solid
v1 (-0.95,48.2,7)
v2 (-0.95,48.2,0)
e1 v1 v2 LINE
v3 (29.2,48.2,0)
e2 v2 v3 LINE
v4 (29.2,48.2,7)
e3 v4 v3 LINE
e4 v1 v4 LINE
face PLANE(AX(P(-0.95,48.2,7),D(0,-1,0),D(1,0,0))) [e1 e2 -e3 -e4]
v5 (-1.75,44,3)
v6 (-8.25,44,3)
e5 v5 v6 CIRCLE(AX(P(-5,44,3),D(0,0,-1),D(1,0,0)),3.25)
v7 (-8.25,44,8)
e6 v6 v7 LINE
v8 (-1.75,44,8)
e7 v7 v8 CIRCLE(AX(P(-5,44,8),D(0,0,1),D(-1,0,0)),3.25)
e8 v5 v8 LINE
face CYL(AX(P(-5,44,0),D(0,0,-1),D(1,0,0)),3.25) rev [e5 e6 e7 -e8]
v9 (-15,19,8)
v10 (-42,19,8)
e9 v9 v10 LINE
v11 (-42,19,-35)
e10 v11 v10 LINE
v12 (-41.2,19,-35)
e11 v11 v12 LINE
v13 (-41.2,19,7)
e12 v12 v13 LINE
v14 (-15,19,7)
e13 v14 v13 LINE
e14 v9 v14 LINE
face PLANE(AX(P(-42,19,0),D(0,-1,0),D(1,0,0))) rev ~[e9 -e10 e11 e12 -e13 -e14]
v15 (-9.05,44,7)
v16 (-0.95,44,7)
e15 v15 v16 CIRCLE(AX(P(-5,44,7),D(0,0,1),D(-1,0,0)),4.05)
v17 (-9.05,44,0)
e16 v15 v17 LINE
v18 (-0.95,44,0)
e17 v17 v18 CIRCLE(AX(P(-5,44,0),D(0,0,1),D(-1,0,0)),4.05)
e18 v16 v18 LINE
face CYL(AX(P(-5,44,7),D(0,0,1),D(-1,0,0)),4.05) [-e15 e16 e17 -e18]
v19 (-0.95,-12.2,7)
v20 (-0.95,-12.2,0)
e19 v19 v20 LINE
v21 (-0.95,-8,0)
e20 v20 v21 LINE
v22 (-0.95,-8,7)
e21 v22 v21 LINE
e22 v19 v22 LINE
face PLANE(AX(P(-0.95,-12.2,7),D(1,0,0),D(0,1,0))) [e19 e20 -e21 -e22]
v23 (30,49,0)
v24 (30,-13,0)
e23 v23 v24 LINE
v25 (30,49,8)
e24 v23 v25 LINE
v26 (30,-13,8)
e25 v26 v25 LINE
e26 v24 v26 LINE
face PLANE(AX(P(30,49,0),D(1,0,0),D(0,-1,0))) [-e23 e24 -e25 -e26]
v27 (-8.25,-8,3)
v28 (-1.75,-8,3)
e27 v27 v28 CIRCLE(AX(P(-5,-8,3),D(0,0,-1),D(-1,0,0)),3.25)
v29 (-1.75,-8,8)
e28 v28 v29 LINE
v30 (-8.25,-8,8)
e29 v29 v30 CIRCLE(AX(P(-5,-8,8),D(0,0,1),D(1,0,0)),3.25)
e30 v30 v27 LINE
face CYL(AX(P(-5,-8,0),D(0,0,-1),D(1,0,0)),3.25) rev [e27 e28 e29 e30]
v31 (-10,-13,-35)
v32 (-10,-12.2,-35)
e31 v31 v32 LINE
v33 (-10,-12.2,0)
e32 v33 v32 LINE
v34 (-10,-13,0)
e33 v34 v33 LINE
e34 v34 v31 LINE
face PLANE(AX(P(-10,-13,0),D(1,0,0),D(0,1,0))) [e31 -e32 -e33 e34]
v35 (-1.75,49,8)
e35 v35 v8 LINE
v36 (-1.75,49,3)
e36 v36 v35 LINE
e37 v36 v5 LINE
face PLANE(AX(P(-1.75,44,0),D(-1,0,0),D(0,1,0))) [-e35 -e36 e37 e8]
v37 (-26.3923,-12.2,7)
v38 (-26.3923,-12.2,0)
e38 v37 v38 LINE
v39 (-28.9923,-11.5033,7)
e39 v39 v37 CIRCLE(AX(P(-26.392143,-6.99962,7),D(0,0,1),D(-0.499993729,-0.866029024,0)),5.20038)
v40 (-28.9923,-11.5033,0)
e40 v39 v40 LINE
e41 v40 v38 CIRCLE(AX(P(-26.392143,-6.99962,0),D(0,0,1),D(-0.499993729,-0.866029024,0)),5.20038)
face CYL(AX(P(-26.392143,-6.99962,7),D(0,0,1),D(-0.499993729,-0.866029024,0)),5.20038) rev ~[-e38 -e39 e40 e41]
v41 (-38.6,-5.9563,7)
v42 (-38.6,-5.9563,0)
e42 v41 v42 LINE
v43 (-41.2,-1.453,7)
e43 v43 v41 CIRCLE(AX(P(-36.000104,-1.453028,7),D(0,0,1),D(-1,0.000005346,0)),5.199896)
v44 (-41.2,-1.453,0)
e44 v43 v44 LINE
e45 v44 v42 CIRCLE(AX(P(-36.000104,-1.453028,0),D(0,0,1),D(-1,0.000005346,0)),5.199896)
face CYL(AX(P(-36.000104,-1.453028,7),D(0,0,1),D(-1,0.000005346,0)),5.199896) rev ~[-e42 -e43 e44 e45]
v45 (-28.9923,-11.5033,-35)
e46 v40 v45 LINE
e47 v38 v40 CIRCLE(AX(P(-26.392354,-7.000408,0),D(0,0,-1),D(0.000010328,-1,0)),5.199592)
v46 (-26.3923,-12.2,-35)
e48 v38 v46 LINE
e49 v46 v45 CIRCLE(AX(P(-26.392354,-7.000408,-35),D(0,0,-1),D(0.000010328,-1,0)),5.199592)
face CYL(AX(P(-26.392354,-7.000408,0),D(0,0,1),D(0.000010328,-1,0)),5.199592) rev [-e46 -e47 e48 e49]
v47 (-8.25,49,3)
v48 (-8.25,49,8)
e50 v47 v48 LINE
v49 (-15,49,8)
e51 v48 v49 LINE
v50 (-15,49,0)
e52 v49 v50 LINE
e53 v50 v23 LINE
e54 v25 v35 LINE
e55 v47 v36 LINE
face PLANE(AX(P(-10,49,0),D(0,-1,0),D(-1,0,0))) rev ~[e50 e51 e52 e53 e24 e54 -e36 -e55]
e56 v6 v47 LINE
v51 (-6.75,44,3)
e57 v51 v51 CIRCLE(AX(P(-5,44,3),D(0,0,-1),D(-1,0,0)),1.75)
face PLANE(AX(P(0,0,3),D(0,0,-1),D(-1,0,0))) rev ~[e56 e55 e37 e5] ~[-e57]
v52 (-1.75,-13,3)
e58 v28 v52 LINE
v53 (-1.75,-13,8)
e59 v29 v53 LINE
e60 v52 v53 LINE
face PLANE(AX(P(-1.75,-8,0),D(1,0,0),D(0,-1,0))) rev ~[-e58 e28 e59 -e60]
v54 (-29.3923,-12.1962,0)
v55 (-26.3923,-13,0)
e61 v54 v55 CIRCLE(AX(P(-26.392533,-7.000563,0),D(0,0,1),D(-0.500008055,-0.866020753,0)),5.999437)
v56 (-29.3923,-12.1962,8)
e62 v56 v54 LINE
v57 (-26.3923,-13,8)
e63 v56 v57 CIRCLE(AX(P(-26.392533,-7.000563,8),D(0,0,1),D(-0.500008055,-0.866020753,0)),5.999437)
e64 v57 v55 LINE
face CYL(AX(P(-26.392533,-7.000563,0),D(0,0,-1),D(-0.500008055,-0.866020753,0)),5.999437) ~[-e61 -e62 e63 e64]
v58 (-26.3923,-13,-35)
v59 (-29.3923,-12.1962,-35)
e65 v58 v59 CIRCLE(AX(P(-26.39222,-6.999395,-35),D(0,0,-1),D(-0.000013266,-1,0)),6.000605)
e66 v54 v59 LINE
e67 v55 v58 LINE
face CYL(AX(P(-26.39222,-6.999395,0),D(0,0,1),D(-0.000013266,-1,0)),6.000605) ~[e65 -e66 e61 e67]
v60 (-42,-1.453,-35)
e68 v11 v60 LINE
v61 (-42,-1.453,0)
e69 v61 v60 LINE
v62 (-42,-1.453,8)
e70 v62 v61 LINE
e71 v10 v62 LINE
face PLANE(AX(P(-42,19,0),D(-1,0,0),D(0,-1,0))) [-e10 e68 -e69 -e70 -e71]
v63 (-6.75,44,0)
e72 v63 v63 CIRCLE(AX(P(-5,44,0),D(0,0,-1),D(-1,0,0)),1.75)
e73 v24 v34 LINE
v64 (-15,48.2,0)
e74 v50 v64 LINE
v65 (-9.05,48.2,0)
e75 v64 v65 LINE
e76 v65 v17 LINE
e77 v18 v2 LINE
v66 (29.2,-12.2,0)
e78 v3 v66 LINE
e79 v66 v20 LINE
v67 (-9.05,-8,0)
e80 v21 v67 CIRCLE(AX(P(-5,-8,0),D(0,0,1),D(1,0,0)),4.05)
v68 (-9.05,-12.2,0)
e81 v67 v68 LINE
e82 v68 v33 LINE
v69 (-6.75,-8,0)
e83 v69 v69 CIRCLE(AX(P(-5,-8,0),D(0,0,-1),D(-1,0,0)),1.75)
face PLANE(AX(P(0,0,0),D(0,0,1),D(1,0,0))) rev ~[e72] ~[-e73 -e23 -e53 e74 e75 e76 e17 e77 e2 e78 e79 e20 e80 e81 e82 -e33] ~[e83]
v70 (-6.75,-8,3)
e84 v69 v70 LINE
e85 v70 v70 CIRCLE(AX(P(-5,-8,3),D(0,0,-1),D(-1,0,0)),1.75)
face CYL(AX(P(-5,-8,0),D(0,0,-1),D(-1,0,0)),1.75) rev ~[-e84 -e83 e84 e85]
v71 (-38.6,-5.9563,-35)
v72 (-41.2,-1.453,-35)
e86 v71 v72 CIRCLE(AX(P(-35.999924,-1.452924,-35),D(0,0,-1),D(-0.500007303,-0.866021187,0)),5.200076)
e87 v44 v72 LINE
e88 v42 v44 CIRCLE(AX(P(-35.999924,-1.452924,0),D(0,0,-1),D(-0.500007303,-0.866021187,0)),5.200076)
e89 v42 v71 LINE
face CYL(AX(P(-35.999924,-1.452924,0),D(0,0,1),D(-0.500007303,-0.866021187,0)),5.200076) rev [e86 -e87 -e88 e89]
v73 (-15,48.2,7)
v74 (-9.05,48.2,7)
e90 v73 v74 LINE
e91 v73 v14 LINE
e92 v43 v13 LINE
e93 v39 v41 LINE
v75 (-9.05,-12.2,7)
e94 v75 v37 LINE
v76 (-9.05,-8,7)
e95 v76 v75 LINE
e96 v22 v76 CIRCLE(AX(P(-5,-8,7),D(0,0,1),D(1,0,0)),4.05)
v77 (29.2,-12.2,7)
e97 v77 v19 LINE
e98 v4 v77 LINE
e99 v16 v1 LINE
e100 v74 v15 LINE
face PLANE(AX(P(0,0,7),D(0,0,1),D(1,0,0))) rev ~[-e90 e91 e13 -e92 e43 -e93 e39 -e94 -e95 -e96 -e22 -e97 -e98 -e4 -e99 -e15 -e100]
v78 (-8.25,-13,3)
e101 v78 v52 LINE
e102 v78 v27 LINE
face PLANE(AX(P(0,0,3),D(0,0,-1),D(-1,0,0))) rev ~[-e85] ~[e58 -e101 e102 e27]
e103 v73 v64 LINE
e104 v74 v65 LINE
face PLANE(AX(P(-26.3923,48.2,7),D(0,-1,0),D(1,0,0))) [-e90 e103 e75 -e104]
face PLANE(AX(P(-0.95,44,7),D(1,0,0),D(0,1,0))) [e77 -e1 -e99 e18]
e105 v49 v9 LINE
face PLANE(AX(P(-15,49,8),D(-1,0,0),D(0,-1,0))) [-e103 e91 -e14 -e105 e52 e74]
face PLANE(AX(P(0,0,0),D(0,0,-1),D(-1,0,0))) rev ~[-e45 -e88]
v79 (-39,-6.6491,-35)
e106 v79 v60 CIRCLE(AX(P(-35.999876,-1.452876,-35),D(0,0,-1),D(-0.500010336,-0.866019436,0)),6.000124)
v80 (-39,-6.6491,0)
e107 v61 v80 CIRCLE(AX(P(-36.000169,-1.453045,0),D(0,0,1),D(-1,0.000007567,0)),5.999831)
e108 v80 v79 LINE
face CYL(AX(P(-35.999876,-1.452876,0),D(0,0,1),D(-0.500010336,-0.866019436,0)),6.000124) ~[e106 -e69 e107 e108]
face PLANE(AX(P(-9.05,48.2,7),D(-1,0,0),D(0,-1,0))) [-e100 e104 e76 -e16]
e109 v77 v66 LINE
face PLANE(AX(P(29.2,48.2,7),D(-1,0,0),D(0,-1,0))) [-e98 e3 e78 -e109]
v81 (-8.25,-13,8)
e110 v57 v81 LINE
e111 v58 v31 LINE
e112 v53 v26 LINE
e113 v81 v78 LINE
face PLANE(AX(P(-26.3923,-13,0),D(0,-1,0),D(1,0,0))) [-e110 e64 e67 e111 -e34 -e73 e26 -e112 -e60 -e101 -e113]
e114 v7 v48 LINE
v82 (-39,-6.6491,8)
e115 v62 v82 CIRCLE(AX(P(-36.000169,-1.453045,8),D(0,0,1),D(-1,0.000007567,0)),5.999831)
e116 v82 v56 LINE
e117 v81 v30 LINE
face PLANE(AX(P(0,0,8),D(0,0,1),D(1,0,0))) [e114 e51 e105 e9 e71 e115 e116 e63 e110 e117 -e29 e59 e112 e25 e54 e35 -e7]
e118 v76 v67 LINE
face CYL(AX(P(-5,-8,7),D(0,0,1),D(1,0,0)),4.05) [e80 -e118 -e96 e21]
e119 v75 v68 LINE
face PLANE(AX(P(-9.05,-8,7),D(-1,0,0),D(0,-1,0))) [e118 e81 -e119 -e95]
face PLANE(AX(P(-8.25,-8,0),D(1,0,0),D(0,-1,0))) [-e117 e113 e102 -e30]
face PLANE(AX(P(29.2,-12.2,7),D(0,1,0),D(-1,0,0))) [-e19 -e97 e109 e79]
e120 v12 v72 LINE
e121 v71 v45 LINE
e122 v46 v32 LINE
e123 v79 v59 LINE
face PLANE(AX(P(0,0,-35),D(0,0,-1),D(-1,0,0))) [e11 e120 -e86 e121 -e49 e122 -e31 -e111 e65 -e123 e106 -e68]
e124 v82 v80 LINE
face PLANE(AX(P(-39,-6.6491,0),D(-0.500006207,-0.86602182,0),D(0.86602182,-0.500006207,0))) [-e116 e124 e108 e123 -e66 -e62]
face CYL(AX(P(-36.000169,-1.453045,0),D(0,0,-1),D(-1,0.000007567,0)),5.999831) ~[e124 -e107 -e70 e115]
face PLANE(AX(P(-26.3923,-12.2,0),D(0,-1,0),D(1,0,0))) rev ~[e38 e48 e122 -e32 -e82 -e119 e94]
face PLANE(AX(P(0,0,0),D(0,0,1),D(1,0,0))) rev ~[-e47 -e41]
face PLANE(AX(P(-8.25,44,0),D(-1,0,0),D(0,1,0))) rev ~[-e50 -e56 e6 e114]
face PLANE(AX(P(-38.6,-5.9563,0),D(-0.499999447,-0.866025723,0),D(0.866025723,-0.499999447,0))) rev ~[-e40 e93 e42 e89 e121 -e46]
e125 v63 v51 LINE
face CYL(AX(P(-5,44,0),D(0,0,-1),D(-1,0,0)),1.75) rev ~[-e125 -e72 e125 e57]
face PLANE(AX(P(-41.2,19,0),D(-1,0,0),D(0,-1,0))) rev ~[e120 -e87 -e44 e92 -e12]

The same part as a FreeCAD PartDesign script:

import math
import FreeCAD as App
import Part
import Sketcher
from FreeCAD import Vector
Q = App.Units.Quantity

doc = App.newDocument("Part")
params = doc.addObject("Spreadsheet::Sheet", "Params")
for row, (alias, value) in enumerate([
    ("sketch1_radius", "3.25 mm"),
    ("sketch1_radius2", "6 mm"),
    ("sketch1_height", "5 mm"),
    ("sketch1_height2", "62 mm"),
    ("pad1_length", "7 mm"),
    ("sketch2_radius", "5.2 mm"),
    ("sketch2_radius2", "4.05 mm"),
    ("sketch2_height", "4.2 mm"),
    ("sketch2_height2", "60.4 mm"),
    ("sketch2_width", "30.15 mm"),
    ("sketch3_radius", "6 mm"),
    ("sketch3_height", "62 mm"),
    ("sketch3_height2", "5 mm"),
    ("sketch3_radius2", "3.25 mm"),
    ("pad2_length", "1 mm"),
    ("sketch4_width", "27 mm"),
    ("sketch4_height", "30 mm"),
    ("sketch4_radius", "6 mm"),
    ("sketch5_radius", "6 mm"),
    ("sketch5_radius2", "5.2 mm"),
    ("pad3_length", "35 mm"),
    ("sketch6_diameter", "3.5 mm"),
    ("sketch6_height", "5 mm"),
    ("sketch6_radius", "3.25 mm"),
    ("pad4_length", "3 mm"),
], start=1):
    params.set(f"A{row}", alias)
    params.set(f"B{row}", "=" + value)
    params.setAlias(f"B{row}", alias)

body = doc.addObject("PartDesign::Body", "Body")

sketch1 = doc.addObject("Sketcher::SketchObject", "Sketch")
body.addObject(sketch1)
sketch1.AttachmentSupport = (doc.XY_Plane, [""])
sketch1.MapMode = "FlatFace"
sketch1.addGeometry([
    Part.ArcOfCircle(Part.Circle(Vector(-5, -8, 0), Vector(0, 0, 1), 3.2), math.radians(0), math.radians(180)),
    Part.LineSegment(Vector(-1.8, -8, 0), Vector(-1.8, -13, 0)),
    Part.LineSegment(Vector(-1.8, -13, 0), Vector(30, -13, 0)),
    Part.LineSegment(Vector(30, -13, 0), Vector(30, 49, 0)),
    Part.LineSegment(Vector(30, 49, 0), Vector(-1.8, 49, 0)),
    Part.LineSegment(Vector(-1.8, 49, 0), Vector(-1.8, 44, 0)),
    Part.ArcOfCircle(Part.Circle(Vector(-5, 44, 0), Vector(0, 0, 1), 3.2), math.radians(180), math.radians(360)),
    Part.LineSegment(Vector(-8.2, 44, 0), Vector(-8.2, 49, 0)),
    Part.LineSegment(Vector(-8.2, 49, 0), Vector(-26.4, 49, 0)),
    Part.ArcOfCircle(Part.Circle(Vector(-26.4, 43, 0), Vector(0, 0, 1), 6), math.radians(90), math.radians(120)),
    Part.LineSegment(Vector(-29.4, 48.2, 0), Vector(-39, 42.6, 0)),
    Part.ArcOfCircle(Part.Circle(Vector(-36, 37.5, 0), Vector(0, 0, 1), 6), math.radians(120), math.radians(180)),
    Part.LineSegment(Vector(-42, 37.5, 0), Vector(-42, -1.5, 0)),
    Part.ArcOfCircle(Part.Circle(Vector(-36, -1.5, 0), Vector(0, 0, 1), 6), math.radians(180), math.radians(240)),
    Part.LineSegment(Vector(-39, -6.6, 0), Vector(-29.4, -12.2, 0)),
    Part.ArcOfCircle(Part.Circle(Vector(-26.4, -7, 0), Vector(0, 0, 1), 6), math.radians(-120), math.radians(-90)),
    Part.LineSegment(Vector(-26.4, -13, 0), Vector(-8.2, -13, 0)),
    Part.LineSegment(Vector(-8.2, -13, 0), Vector(-8.2, -8, 0)),
], False)
sketch1.addConstraint([
    Sketcher.Constraint("Tangent", 0, 1, 1, 1),
    Sketcher.Constraint("Coincident", 1, 2, 2, 1),
    Sketcher.Constraint("Coincident", 2, 2, 3, 1),
    Sketcher.Constraint("Coincident", 3, 2, 4, 1),
    Sketcher.Constraint("Coincident", 4, 2, 5, 1),
    Sketcher.Constraint("Tangent", 5, 2, 6, 2),
    Sketcher.Constraint("Tangent", 6, 1, 7, 1),
    Sketcher.Constraint("Coincident", 7, 2, 8, 1),
    Sketcher.Constraint("Tangent", 8, 2, 9, 1),
    Sketcher.Constraint("Tangent", 9, 2, 10, 1),
    Sketcher.Constraint("Tangent", 10, 2, 11, 1),
    Sketcher.Constraint("Tangent", 11, 2, 12, 1),
    Sketcher.Constraint("Tangent", 12, 2, 13, 1),
    Sketcher.Constraint("Tangent", 13, 2, 14, 1),
    Sketcher.Constraint("Tangent", 14, 2, 15, 1),
    Sketcher.Constraint("Tangent", 15, 2, 16, 1),
    Sketcher.Constraint("Coincident", 16, 2, 17, 1),
    Sketcher.Constraint("Tangent", 17, 2, 0, 2),
    Sketcher.Constraint("Vertical", 1),
    Sketcher.Constraint("Horizontal", 2),
    Sketcher.Constraint("Vertical", 3),
    Sketcher.Constraint("Horizontal", 4),
    Sketcher.Constraint("Vertical", 5),
    Sketcher.Constraint("Vertical", 7),
    Sketcher.Constraint("Horizontal", 8),
    Sketcher.Constraint("Vertical", 12),
    Sketcher.Constraint("Horizontal", 16),
    Sketcher.Constraint("Vertical", 17),
    Sketcher.Constraint("Equal", 0, 6),
    Sketcher.Constraint("Equal", 9, 11),
    Sketcher.Constraint("Equal", 11, 13),
    Sketcher.Constraint("Equal", 13, 15),
    Sketcher.Constraint("Horizontal", 4, 2, 7, 2),
    Sketcher.Constraint("Horizontal", 2, 2, 15, 2),
    Sketcher.Constraint("Vertical", 0, 3, 6, 3),
    Sketcher.Constraint("Vertical", 9, 3, 15, 3),
    Sketcher.Constraint("Vertical", 10, 2, 13, 2),
    Sketcher.Constraint("Equal", 1, 5),
    Sketcher.Constraint("Radius", 0, 3.25),
    Sketcher.Constraint("Radius", 9, 6.0),
    Sketcher.Constraint("DistanceY", 1, 2, 1, 1, 5.0),
    Sketcher.Constraint("DistanceY", 3, 1, 3, 2, 62.0),
    Sketcher.Constraint("Angle", 10, Q("-149.9996 deg")),
    Sketcher.Constraint("DistanceX", 0, 3, -1, 1, 5.0),
    Sketcher.Constraint("DistanceY", 0, 3, -1, 1, 8.0),
    Sketcher.Constraint("DistanceX", 11, 3, -1, 1, 36.0),
    Sketcher.Constraint("DistanceX", -1, 1, 2, 2, 30.0),
    Sketcher.Constraint("DistanceY", 12, 2, 12, 1, 38.906),
])
sketch1.setExpression("Constraints[38]", "Params.sketch1_radius")
sketch1.setExpression("Constraints[39]", "Params.sketch1_radius2")
sketch1.setExpression("Constraints[40]", "Params.sketch1_height")
sketch1.setExpression("Constraints[41]", "Params.sketch1_height2")
pad1 = doc.addObject("PartDesign::Pad", "Pad")
body.addObject(pad1)
pad1.Profile = sketch1
pad1.setExpression("Length", "Params.pad1_length")

sketch2 = doc.addObject("Sketcher::SketchObject", "Sketch001")
body.addObject(sketch2)
sketch2.AttachmentSupport = (doc.XY_Plane, [""])
sketch2.MapMode = "FlatFace"
sketch2.AttachmentOffset = App.Placement(Vector(0, 0, 7), App.Rotation())
sketch2.addGeometry([
    Part.LineSegment(Vector(29.2, 48.2, 0), Vector(-0.9, 48.2, 0)),
    Part.LineSegment(Vector(-0.9, 48.2, 0), Vector(-0.9, 44, 0)),
    Part.ArcOfCircle(Part.Circle(Vector(-5, 44, 0), Vector(0, 0, 1), 4.1), math.radians(180), math.radians(360)),
    Part.LineSegment(Vector(-9.1, 44, 0), Vector(-9.1, 48.2, 0)),
    Part.LineSegment(Vector(-9.1, 48.2, 0), Vector(-26.4, 48.2, 0)),
    Part.ArcOfCircle(Part.Circle(Vector(-26.4, 43, 0), Vector(0, 0, 1), 5.2), math.radians(90), math.radians(120)),
    Part.LineSegment(Vector(-29, 47.5, 0), Vector(-38.6, 42, 0)),
    Part.ArcOfCircle(Part.Circle(Vector(-36, 37.5, 0), Vector(0, 0, 1), 5.2), math.radians(120), math.radians(180)),
    Part.LineSegment(Vector(-41.2, 37.5, 0), Vector(-41.2, -1.5, 0)),
    Part.ArcOfCircle(Part.Circle(Vector(-36, -1.5, 0), Vector(0, 0, 1), 5.2), math.radians(180), math.radians(240)),
    Part.LineSegment(Vector(-38.6, -6, 0), Vector(-29, -11.5, 0)),
    Part.ArcOfCircle(Part.Circle(Vector(-26.4, -7, 0), Vector(0, 0, 1), 5.2), math.radians(-120), math.radians(-90)),
    Part.LineSegment(Vector(-26.4, -12.2, 0), Vector(-9.1, -12.2, 0)),
    Part.LineSegment(Vector(-9.1, -12.2, 0), Vector(-9.1, -8, 0)),
    Part.ArcOfCircle(Part.Circle(Vector(-5, -8, 0), Vector(0, 0, 1), 4), math.radians(0), math.radians(180)),
    Part.LineSegment(Vector(-0.9, -8, 0), Vector(-0.9, -12.2, 0)),
    Part.LineSegment(Vector(-0.9, -12.2, 0), Vector(29.2, -12.2, 0)),
    Part.LineSegment(Vector(29.2, -12.2, 0), Vector(29.2, 48.2, 0)),
], False)
sketch2.addConstraint([
    Sketcher.Constraint("Coincident", 0, 2, 1, 1),
    Sketcher.Constraint("Tangent", 1, 2, 2, 2),
    Sketcher.Constraint("Tangent", 2, 1, 3, 1),
    Sketcher.Constraint("Coincident", 3, 2, 4, 1),
    Sketcher.Constraint("Tangent", 4, 2, 5, 1),
    Sketcher.Constraint("Tangent", 5, 2, 6, 1),
    Sketcher.Constraint("Tangent", 6, 2, 7, 1),
    Sketcher.Constraint("Tangent", 7, 2, 8, 1),
    Sketcher.Constraint("Tangent", 8, 2, 9, 1),
    Sketcher.Constraint("Tangent", 9, 2, 10, 1),
    Sketcher.Constraint("Tangent", 10, 2, 11, 1),
    Sketcher.Constraint("Tangent", 11, 2, 12, 1),
    Sketcher.Constraint("Coincident", 12, 2, 13, 1),
    Sketcher.Constraint("Tangent", 13, 2, 14, 2),
    Sketcher.Constraint("Tangent", 14, 1, 15, 1),
    Sketcher.Constraint("Coincident", 15, 2, 16, 1),
    Sketcher.Constraint("Coincident", 16, 2, 17, 1),
    Sketcher.Constraint("Coincident", 17, 2, 0, 1),
    Sketcher.Constraint("Horizontal", 0),
    Sketcher.Constraint("Vertical", 1),
    Sketcher.Constraint("Vertical", 3),
    Sketcher.Constraint("Horizontal", 4),
    Sketcher.Constraint("Vertical", 8),
    Sketcher.Constraint("Horizontal", 12),
    Sketcher.Constraint("Vertical", 13),
    Sketcher.Constraint("Vertical", 15),
    Sketcher.Constraint("Horizontal", 16),
    Sketcher.Constraint("Vertical", 17),
    Sketcher.Constraint("Equal", 5, 7),
    Sketcher.Constraint("Equal", 7, 9),
    Sketcher.Constraint("Equal", 9, 11),
    Sketcher.Constraint("Equal", 2, 14),
    Sketcher.Constraint("Horizontal", 0, 2, 3, 2),
    Sketcher.Constraint("Horizontal", 12, 2, 15, 2),
    Sketcher.Constraint("Vertical", 5, 3, 11, 3),
    Sketcher.Constraint("Vertical", 2, 3, 14, 3),
    Sketcher.Constraint("Vertical", 6, 2, 9, 2),
    Sketcher.Constraint("Equal", 3, 13),
    Sketcher.Constraint("Radius", 5, 5.2),
    Sketcher.Constraint("Angle", 6, Q("-150 deg")),
    Sketcher.Constraint("Radius", 2, 4.05),
    Sketcher.Constraint("DistanceY", 1, 2, 1, 1, 4.2),
    Sketcher.Constraint("DistanceY", 17, 1, 17, 2, 60.4),
    Sketcher.Constraint("DistanceX", 2, 3, -1, 1, 5.0),
    Sketcher.Constraint("DistanceY", -1, 1, 2, 3, 44.0),
    Sketcher.Constraint("DistanceX", 7, 3, -1, 1, 36.0),
    Sketcher.Constraint("DistanceX", 0, 2, 0, 1, 30.15),
    Sketcher.Constraint("DistanceY", 8, 2, 8, 1, 38.906),
])
sketch2.setExpression("Constraints[38]", "Params.sketch2_radius")
sketch2.setExpression("Constraints[40]", "Params.sketch2_radius2")
sketch2.setExpression("Constraints[41]", "Params.sketch2_height")
sketch2.setExpression("Constraints[42]", "Params.sketch2_height2")
sketch2.setExpression("Constraints[46]", "Params.sketch2_width")
pocket1 = doc.addObject("PartDesign::Pocket", "Pocket")
body.addObject(pocket1)
pocket1.Profile = sketch2
pocket1.Type = "ThroughAll"

sketch3 = doc.addObject("Sketcher::SketchObject", "Sketch002")
body.addObject(sketch3)
sketch3.AttachmentSupport = (doc.XY_Plane, [""])
sketch3.MapMode = "FlatFace"
sketch3.AttachmentOffset = App.Placement(Vector(0, 0, 7), App.Rotation())
sketch3.addGeometry([
    Part.LineSegment(Vector(30, -13, 0), Vector(30, 49, 0)),
    Part.LineSegment(Vector(30, 49, 0), Vector(-1.8, 49, 0)),
    Part.LineSegment(Vector(-1.8, 49, 0), Vector(-1.8, 44, 0)),
    Part.ArcOfCircle(Part.Circle(Vector(-5, 44, 0), Vector(0, 0, 1), 3.2), math.radians(180), math.radians(360)),
    Part.LineSegment(Vector(-8.2, 44, 0), Vector(-8.2, 49, 0)),
    Part.LineSegment(Vector(-8.2, 49, 0), Vector(-26.4, 49, 0)),
    Part.ArcOfCircle(Part.Circle(Vector(-26.4, 43, 0), Vector(0, 0, 1), 6), math.radians(90), math.radians(120)),
    Part.LineSegment(Vector(-29.4, 48.2, 0), Vector(-39, 42.6, 0)),
    Part.ArcOfCircle(Part.Circle(Vector(-36, 37.5, 0), Vector(0, 0, 1), 6), math.radians(120), math.radians(180)),
    Part.LineSegment(Vector(-42, 37.5, 0), Vector(-42, -1.5, 0)),
    Part.ArcOfCircle(Part.Circle(Vector(-36, -1.5, 0), Vector(0, 0, 1), 6), math.radians(180), math.radians(240)),
    Part.LineSegment(Vector(-39, -6.6, 0), Vector(-29.4, -12.2, 0)),
    Part.ArcOfCircle(Part.Circle(Vector(-26.4, -7, 0), Vector(0, 0, 1), 6), math.radians(-120), math.radians(-90)),
    Part.LineSegment(Vector(-26.4, -13, 0), Vector(-8.2, -13, 0)),
    Part.LineSegment(Vector(-8.2, -13, 0), Vector(-8.2, -8, 0)),
    Part.ArcOfCircle(Part.Circle(Vector(-5, -8, 0), Vector(0, 0, 1), 3.2), math.radians(0), math.radians(180)),
    Part.LineSegment(Vector(-1.8, -8, 0), Vector(-1.8, -13, 0)),
    Part.LineSegment(Vector(-1.8, -13, 0), Vector(30, -13, 0)),
], False)
sketch3.addConstraint([
    Sketcher.Constraint("Coincident", 0, 2, 1, 1),
    Sketcher.Constraint("Coincident", 1, 2, 2, 1),
    Sketcher.Constraint("Tangent", 2, 2, 3, 2),
    Sketcher.Constraint("Tangent", 3, 1, 4, 1),
    Sketcher.Constraint("Coincident", 4, 2, 5, 1),
    Sketcher.Constraint("Tangent", 5, 2, 6, 1),
    Sketcher.Constraint("Tangent", 6, 2, 7, 1),
    Sketcher.Constraint("Tangent", 7, 2, 8, 1),
    Sketcher.Constraint("Tangent", 8, 2, 9, 1),
    Sketcher.Constraint("Tangent", 9, 2, 10, 1),
    Sketcher.Constraint("Tangent", 10, 2, 11, 1),
    Sketcher.Constraint("Tangent", 11, 2, 12, 1),
    Sketcher.Constraint("Tangent", 12, 2, 13, 1),
    Sketcher.Constraint("Coincident", 13, 2, 14, 1),
    Sketcher.Constraint("Tangent", 14, 2, 15, 2),
    Sketcher.Constraint("Tangent", 15, 1, 16, 1),
    Sketcher.Constraint("Coincident", 16, 2, 17, 1),
    Sketcher.Constraint("Coincident", 17, 2, 0, 1),
    Sketcher.Constraint("Vertical", 0),
    Sketcher.Constraint("Horizontal", 1),
    Sketcher.Constraint("Vertical", 2),
    Sketcher.Constraint("Vertical", 4),
    Sketcher.Constraint("Horizontal", 5),
    Sketcher.Constraint("Vertical", 9),
    Sketcher.Constraint("Horizontal", 13),
    Sketcher.Constraint("Vertical", 14),
    Sketcher.Constraint("Vertical", 16),
    Sketcher.Constraint("Horizontal", 17),
    Sketcher.Constraint("Equal", 6, 8),
    Sketcher.Constraint("Equal", 8, 10),
    Sketcher.Constraint("Equal", 10, 12),
    Sketcher.Constraint("Equal", 3, 15),
    Sketcher.Constraint("Horizontal", 1, 2, 4, 2),
    Sketcher.Constraint("Horizontal", 13, 2, 16, 2),
    Sketcher.Constraint("Vertical", 6, 3, 12, 3),
    Sketcher.Constraint("Vertical", 3, 3, 15, 3),
    Sketcher.Constraint("Vertical", 7, 2, 10, 2),
    Sketcher.Constraint("Equal", 4, 14),
    Sketcher.Constraint("Radius", 6, 6.0),
    Sketcher.Constraint("DistanceY", 0, 1, 0, 2, 62.0),
    Sketcher.Constraint("DistanceY", 2, 2, 2, 1, 5.0),
    Sketcher.Constraint("Angle", 7, Q("-149.9996 deg")),
    Sketcher.Constraint("Radius", 3, 3.25),
    Sketcher.Constraint("DistanceX", 3, 3, -1, 1, 5.0),
    Sketcher.Constraint("DistanceY", -1, 1, 3, 3, 44.0),
    Sketcher.Constraint("DistanceX", 8, 3, -1, 1, 36.0),
    Sketcher.Constraint("DistanceX", -1, 1, 0, 2, 30.0),
    Sketcher.Constraint("DistanceY", 9, 2, 9, 1, 38.906),
])
sketch3.setExpression("Constraints[38]", "Params.sketch3_radius")
sketch3.setExpression("Constraints[39]", "Params.sketch3_height")
sketch3.setExpression("Constraints[40]", "Params.sketch3_height2")
sketch3.setExpression("Constraints[42]", "Params.sketch3_radius2")
pad2 = doc.addObject("PartDesign::Pad", "Pad001")
body.addObject(pad2)
pad2.Profile = sketch3
pad2.setExpression("Length", "Params.pad2_length")

sketch4 = doc.addObject("Sketcher::SketchObject", "Sketch003")
body.addObject(sketch4)
sketch4.AttachmentSupport = (doc.XY_Plane, [""])
sketch4.MapMode = "FlatFace"
sketch4.AttachmentOffset = App.Placement(Vector(0, 0, 8), App.Rotation())
sketch4.addGeometry([
    Part.LineSegment(Vector(-15, 19, 0), Vector(-15, 49, 0)),
    Part.LineSegment(Vector(-15, 49, 0), Vector(-26.4, 49, 0)),
    Part.ArcOfCircle(Part.Circle(Vector(-26.4, 43, 0), Vector(0, 0, 1), 6), math.radians(90), math.radians(120)),
    Part.LineSegment(Vector(-29.4, 48.2, 0), Vector(-39, 42.6, 0)),
    Part.ArcOfCircle(Part.Circle(Vector(-36, 37.5, 0), Vector(0, 0, 1), 6), math.radians(120), math.radians(180)),
    Part.LineSegment(Vector(-42, 37.5, 0), Vector(-42, 19, 0)),
    Part.LineSegment(Vector(-42, 19, 0), Vector(-15, 19, 0)),
], False)
sketch4.addConstraint([
    Sketcher.Constraint("Coincident", 0, 2, 1, 1),
    Sketcher.Constraint("Tangent", 1, 2, 2, 1),
    Sketcher.Constraint("Tangent", 2, 2, 3, 1),
    Sketcher.Constraint("Tangent", 3, 2, 4, 1),
    Sketcher.Constraint("Tangent", 4, 2, 5, 1),
    Sketcher.Constraint("Coincident", 5, 2, 6, 1),
    Sketcher.Constraint("Coincident", 6, 2, 0, 1),
    Sketcher.Constraint("Vertical", 0),
    Sketcher.Constraint("Horizontal", 1),
    Sketcher.Constraint("Vertical", 5),
    Sketcher.Constraint("Horizontal", 6),
    Sketcher.Constraint("Equal", 2, 4),
    Sketcher.Constraint("DistanceX", 6, 1, 6, 2, 27.0),
    Sketcher.Constraint("DistanceY", 0, 1, 0, 2, 30.0),
    Sketcher.Constraint("Radius", 2, 6.0),
    Sketcher.Constraint("Angle", 3, Q("-149.9996 deg")),
    Sketcher.Constraint("DistanceY", -1, 1, 2, 3, 43.0),
    Sketcher.Constraint("DistanceX", 4, 3, -1, 1, 36.0),
    Sketcher.Constraint("DistanceY", 5, 2, 5, 1, 18.453),
])
sketch4.setExpression("Constraints[12]", "Params.sketch4_width")
sketch4.setExpression("Constraints[13]", "Params.sketch4_height")
sketch4.setExpression("Constraints[14]", "Params.sketch4_radius")
pocket2 = doc.addObject("PartDesign::Pocket", "Pocket001")
body.addObject(pocket2)
pocket2.Profile = sketch4
pocket2.Type = "ThroughAll"

sketch5 = doc.addObject("Sketcher::SketchObject", "Sketch004")
body.addObject(sketch5)
sketch5.AttachmentSupport = (doc.XY_Plane, [""])
sketch5.MapMode = "FlatFace"
sketch5.addGeometry([
    Part.LineSegment(Vector(-26.4, -12.2, 0), Vector(-10, -12.2, 0)),
    Part.LineSegment(Vector(-10, -12.2, 0), Vector(-10, -13, 0)),
    Part.LineSegment(Vector(-10, -13, 0), Vector(-26.4, -13, 0)),
    Part.ArcOfCircle(Part.Circle(Vector(-26.4, -7, 0), Vector(0, 0, 1), 6), math.radians(-120), math.radians(-90)),
    Part.LineSegment(Vector(-29.4, -12.2, 0), Vector(-39, -6.6, 0)),
    Part.ArcOfCircle(Part.Circle(Vector(-36, -1.5, 0), Vector(0, 0, 1), 6), math.radians(180), math.radians(240)),
    Part.LineSegment(Vector(-42, -1.5, 0), Vector(-42, 19, 0)),
    Part.LineSegment(Vector(-42, 19, 0), Vector(-41.2, 19, 0)),
    Part.LineSegment(Vector(-41.2, 19, 0), Vector(-41.2, -1.5, 0)),
    Part.ArcOfCircle(Part.Circle(Vector(-36, -1.5, 0), Vector(0, 0, 1), 5.2), math.radians(180), math.radians(240)),
    Part.LineSegment(Vector(-38.6, -6, 0), Vector(-29, -11.5, 0)),
    Part.ArcOfCircle(Part.Circle(Vector(-26.4, -7, 0), Vector(0, 0, 1), 5.2), math.radians(-120), math.radians(-90)),
], False)
sketch5.addConstraint([
    Sketcher.Constraint("Coincident", 0, 2, 1, 1),
    Sketcher.Constraint("Coincident", 1, 2, 2, 1),
    Sketcher.Constraint("Tangent", 2, 2, 3, 2),
    Sketcher.Constraint("Tangent", 3, 1, 4, 1),
    Sketcher.Constraint("Tangent", 4, 2, 5, 2),
    Sketcher.Constraint("Tangent", 5, 1, 6, 1),
    Sketcher.Constraint("Coincident", 6, 2, 7, 1),
    Sketcher.Constraint("Coincident", 7, 2, 8, 1),
    Sketcher.Constraint("Tangent", 8, 2, 9, 1),
    Sketcher.Constraint("Tangent", 9, 2, 10, 1),
    Sketcher.Constraint("Tangent", 10, 2, 11, 1),
    Sketcher.Constraint("Tangent", 11, 2, 0, 1),
    Sketcher.Constraint("Horizontal", 0),
    Sketcher.Constraint("Vertical", 1),
    Sketcher.Constraint("Horizontal", 2),
    Sketcher.Constraint("Vertical", 6),
    Sketcher.Constraint("Horizontal", 7),
    Sketcher.Constraint("Vertical", 8),
    Sketcher.Constraint("Coincident", 9, 3, 5, 3),
    Sketcher.Constraint("Coincident", 11, 3, 3, 3),
    Sketcher.Constraint("Equal", 3, 5),
    Sketcher.Constraint("Equal", 9, 11),
    Sketcher.Constraint("Radius", 3, 6.0),
    Sketcher.Constraint("Radius", 9, 5.2),
    Sketcher.Constraint("Angle", 4, Q("149.9996 deg")),
    Sketcher.Constraint("DistanceY", 3, 3, -1, 1, 7.0),
    Sketcher.Constraint("DistanceX", 5, 3, -1, 1, 36.0),
    Sketcher.Constraint("DistanceX", 0, 2, -1, 1, 10.0),
    Sketcher.Constraint("DistanceY", -1, 1, 6, 2, 19.0),
    Sketcher.Constraint("DistanceY", 6, 1, 6, 2, 20.453),
])
sketch5.setExpression("Constraints[22]", "Params.sketch5_radius")
sketch5.setExpression("Constraints[23]", "Params.sketch5_radius2")
pad3 = doc.addObject("PartDesign::Pad", "Pad002")
body.addObject(pad3)
pad3.Profile = sketch5
pad3.setExpression("Length", "Params.pad3_length")
pad3.Reversed = True

sketch6 = doc.addObject("Sketcher::SketchObject", "Sketch005")
body.addObject(sketch6)
sketch6.AttachmentSupport = (doc.XY_Plane, [""])
sketch6.MapMode = "FlatFace"
sketch6.addGeometry([
    Part.LineSegment(Vector(-8.2, -13, 0), Vector(-8.2, -8, 0)),
    Part.ArcOfCircle(Part.Circle(Vector(-5, -8, 0), Vector(0, 0, 1), 3.2), math.radians(0), math.radians(180)),
    Part.LineSegment(Vector(-1.8, -8, 0), Vector(-1.8, -13, 0)),
    Part.LineSegment(Vector(-1.8, -13, 0), Vector(-8.2, -13, 0)),
    Part.Circle(Vector(-5, -8, 0), Vector(0, 0, 1), 1.8),
    Part.LineSegment(Vector(-1.8, 49, 0), Vector(-1.8, 44, 0)),
    Part.ArcOfCircle(Part.Circle(Vector(-5, 44, 0), Vector(0, 0, 1), 3.2), math.radians(180), math.radians(360)),
    Part.LineSegment(Vector(-8.2, 44, 0), Vector(-8.2, 49, 0)),
    Part.LineSegment(Vector(-8.2, 49, 0), Vector(-1.8, 49, 0)),
    Part.Circle(Vector(-5, 44, 0), Vector(0, 0, 1), 1.8),
], False)
sketch6.addConstraint([
    Sketcher.Constraint("Tangent", 0, 2, 1, 2),
    Sketcher.Constraint("Tangent", 1, 1, 2, 1),
    Sketcher.Constraint("Coincident", 2, 2, 3, 1),
    Sketcher.Constraint("Coincident", 3, 2, 0, 1),
    Sketcher.Constraint("Tangent", 5, 2, 6, 2),
    Sketcher.Constraint("Tangent", 6, 1, 7, 1),
    Sketcher.Constraint("Coincident", 7, 2, 8, 1),
    Sketcher.Constraint("Coincident", 8, 2, 5, 1),
    Sketcher.Constraint("Vertical", 0),
    Sketcher.Constraint("Vertical", 2),
    Sketcher.Constraint("Horizontal", 3),
    Sketcher.Constraint("Vertical", 5),
    Sketcher.Constraint("Vertical", 7),
    Sketcher.Constraint("Horizontal", 8),
    Sketcher.Constraint("Coincident", 4, 3, 1, 3),
    Sketcher.Constraint("Coincident", 9, 3, 6, 3),
    Sketcher.Constraint("Equal", 1, 6),
    Sketcher.Constraint("Equal", 4, 9),
    Sketcher.Constraint("Vertical", 4, 3, 6, 3),
    Sketcher.Constraint("Equal", 2, 5),
    Sketcher.Constraint("Diameter", 4, 3.5),
    Sketcher.Constraint("DistanceY", 0, 1, 0, 2, 5.0),
    Sketcher.Constraint("Radius", 1, 3.25),
    Sketcher.Constraint("DistanceX", 1, 3, -1, 1, 5.0),
    Sketcher.Constraint("DistanceY", 1, 3, -1, 1, 8.0),
    Sketcher.Constraint("DistanceY", -1, 1, 6, 3, 44.0),
])
sketch6.setExpression("Constraints[20]", "Params.sketch6_diameter")
sketch6.setExpression("Constraints[21]", "Params.sketch6_height")
sketch6.setExpression("Constraints[22]", "Params.sketch6_radius")
pad4 = doc.addObject("PartDesign::Pad", "Pad003")
body.addObject(pad4)
pad4.Profile = sketch6
pad4.setExpression("Length", "Params.pad4_length")

doc.recompute()
